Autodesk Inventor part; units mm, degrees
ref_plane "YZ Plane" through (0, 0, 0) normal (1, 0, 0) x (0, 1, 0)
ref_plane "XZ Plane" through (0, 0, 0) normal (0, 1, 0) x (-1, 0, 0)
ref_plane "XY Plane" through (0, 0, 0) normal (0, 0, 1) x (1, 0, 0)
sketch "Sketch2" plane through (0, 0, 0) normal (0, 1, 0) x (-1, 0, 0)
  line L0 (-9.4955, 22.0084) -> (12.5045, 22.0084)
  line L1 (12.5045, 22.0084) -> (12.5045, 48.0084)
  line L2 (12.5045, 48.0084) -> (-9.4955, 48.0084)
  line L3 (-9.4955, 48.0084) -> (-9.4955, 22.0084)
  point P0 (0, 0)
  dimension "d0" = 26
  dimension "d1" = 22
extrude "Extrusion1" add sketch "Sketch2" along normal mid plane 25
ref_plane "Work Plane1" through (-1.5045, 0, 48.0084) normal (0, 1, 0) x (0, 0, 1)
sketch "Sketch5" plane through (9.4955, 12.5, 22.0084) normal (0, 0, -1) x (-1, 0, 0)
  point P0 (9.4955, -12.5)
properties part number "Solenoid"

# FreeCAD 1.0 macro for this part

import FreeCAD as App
import Part
import Sketcher

V = App.Vector
Q = App.Units.Quantity

doc = App.newDocument("Part")
body = doc.addObject("PartDesign::Body", "Body")

sketch1 = doc.addObject("Sketcher::SketchObject", "Sketch")
body.addObject(sketch1)
sketch1.AttachmentSupport = (doc.XZ_Plane, [""])
sketch1.MapMode = "FlatFace"
sketch1.addGeometry([
    Part.LineSegment(V(9, 48, 0), V(9, 22, 0)),
    Part.LineSegment(V(9, 22, 0), V(-13, 22, 0)),
    Part.LineSegment(V(-13, 22, 0), V(-13, 48, 0)),
    Part.LineSegment(V(-13, 48, 0), V(9, 48, 0)),
], False)
sketch1.addConstraint([
    Sketcher.Constraint("Coincident", 0, 2, 1, 1),
    Sketcher.Constraint("Coincident", 1, 2, 2, 1),
    Sketcher.Constraint("Coincident", 2, 2, 3, 1),
    Sketcher.Constraint("Coincident", 3, 2, 0, 1),
    Sketcher.Constraint("Vertical", 0),
    Sketcher.Constraint("Horizontal", 1),
    Sketcher.Constraint("Vertical", 2),
    Sketcher.Constraint("Horizontal", 3),
    Sketcher.Constraint("DistanceX", 1, 2, 1, 1, Q("22 mm")),
    Sketcher.Constraint("DistanceY", 0, 2, 0, 1, Q("26 mm")),
    Sketcher.Constraint("DistanceX", -1, 1, 0, 2, Q("9.4955 mm")),
    Sketcher.Constraint("DistanceY", -1, 1, 0, 2, Q("22.0084 mm")),
])
pad1 = doc.addObject("PartDesign::Pad", "Pad")
body.addObject(pad1)
pad1.Profile = sketch1
pad1.Length = 25
pad1.Midplane = True

doc.recompute()
